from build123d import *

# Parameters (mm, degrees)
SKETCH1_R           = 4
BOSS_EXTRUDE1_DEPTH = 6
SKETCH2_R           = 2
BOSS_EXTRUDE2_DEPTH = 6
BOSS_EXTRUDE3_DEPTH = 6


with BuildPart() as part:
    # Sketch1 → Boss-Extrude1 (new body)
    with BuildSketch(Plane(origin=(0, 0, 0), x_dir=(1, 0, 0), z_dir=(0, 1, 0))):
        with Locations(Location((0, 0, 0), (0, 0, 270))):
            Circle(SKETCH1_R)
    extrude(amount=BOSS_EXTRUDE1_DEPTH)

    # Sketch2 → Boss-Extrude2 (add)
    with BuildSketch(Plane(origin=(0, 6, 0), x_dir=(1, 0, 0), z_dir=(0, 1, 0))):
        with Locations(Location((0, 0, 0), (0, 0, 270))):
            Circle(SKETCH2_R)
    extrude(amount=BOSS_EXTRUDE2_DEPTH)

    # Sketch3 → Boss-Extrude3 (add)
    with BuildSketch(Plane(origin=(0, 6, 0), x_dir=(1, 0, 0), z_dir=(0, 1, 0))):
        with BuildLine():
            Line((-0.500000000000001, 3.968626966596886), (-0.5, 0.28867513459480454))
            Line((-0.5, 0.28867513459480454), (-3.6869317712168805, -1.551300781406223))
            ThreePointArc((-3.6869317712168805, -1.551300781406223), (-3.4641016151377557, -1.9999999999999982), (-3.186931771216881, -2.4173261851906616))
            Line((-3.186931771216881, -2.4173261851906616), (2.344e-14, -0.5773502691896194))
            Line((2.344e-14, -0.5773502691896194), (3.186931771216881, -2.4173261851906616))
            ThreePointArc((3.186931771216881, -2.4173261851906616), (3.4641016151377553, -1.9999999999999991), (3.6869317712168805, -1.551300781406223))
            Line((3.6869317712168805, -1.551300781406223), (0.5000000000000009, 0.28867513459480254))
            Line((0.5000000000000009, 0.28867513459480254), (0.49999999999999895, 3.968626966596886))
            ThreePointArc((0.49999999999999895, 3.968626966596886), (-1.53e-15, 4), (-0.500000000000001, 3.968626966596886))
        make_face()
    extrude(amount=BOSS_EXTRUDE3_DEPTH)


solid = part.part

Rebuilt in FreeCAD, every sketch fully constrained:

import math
import FreeCAD as App
import Part
import Sketcher
from FreeCAD import Vector
Q = App.Units.Quantity

doc = App.newDocument("Part")
body = doc.addObject("PartDesign::Body", "Body")

# Sketch on XZ plane
sketch1 = doc.addObject("Sketcher::SketchObject", "Sketch")
body.addObject(sketch1)
sketch1.AttachmentSupport = (doc.XZ_Plane, [""])
sketch1.MapMode = "FlatFace"
sketch1.addGeometry(Part.Circle(Vector(0, 0, 0), Vector(0, 0, 1), 4), False)
sketch1.addConstraint([
    Sketcher.Constraint("Coincident", 0, 3, -1, 1),
    Sketcher.Constraint("Diameter", 0, 8.0),
])
pad1 = doc.addObject("PartDesign::Pad", "Pad")
body.addObject(pad1)
pad1.Profile = sketch1
pad1.Length = 6
pad1.Reversed = True

# Sketch on XZ plane
sketch2 = doc.addObject("Sketcher::SketchObject", "Sketch001")
body.addObject(sketch2)
sketch2.AttachmentSupport = (doc.XZ_Plane, [""])
sketch2.MapMode = "FlatFace"
sketch2.AttachmentOffset = App.Placement(Vector(0, 0, -6), App.Rotation())
sketch2.addGeometry(Part.Circle(Vector(0, 0, 0), Vector(0, 0, 1), 2), False)
sketch2.addConstraint([
    Sketcher.Constraint("Coincident", 0, 3, -1, 1),
    Sketcher.Constraint("Diameter", 0, 4.0),
])
pad2 = doc.addObject("PartDesign::Pad", "Pad001")
body.addObject(pad2)
pad2.Profile = sketch2
pad2.Length = 6
pad2.Reversed = True

# Sketch on XZ plane
sketch3 = doc.addObject("Sketcher::SketchObject", "Sketch002")
body.addObject(sketch3)
sketch3.AttachmentSupport = (doc.XZ_Plane, [""])
sketch3.MapMode = "FlatFace"
sketch3.AttachmentOffset = App.Placement(Vector(0, 0, -6), App.Rotation())
sketch3.addGeometry([
    Part.LineSegment(Vector(-0.5, -4, 0), Vector(-0.5, -0.3, 0)),  # 0
    Part.LineSegment(Vector(-0.5, -0.3, 0), Vector(-3.7, 1.6, 0)),  # 1
    Part.ArcOfCircle(Part.Circle(Vector(0, 0, 0), Vector(0, 0, 1), 4), math.radians(142.82), math.radians(157.18)),  # 2
    Part.LineSegment(Vector(-3.2, 2.4, 0), Vector(0, 0.6, 0)),  # 3
    Part.LineSegment(Vector(0, 0.6, 0), Vector(3.2, 2.4, 0)),  # 4
    Part.ArcOfCircle(Part.Circle(Vector(0, 0, 0), Vector(0, 0, 1), 4), math.radians(22.82), math.radians(37.18)),  # 5
    Part.LineSegment(Vector(3.7, 1.6, 0), Vector(0.5, -0.3, 0)),  # 6
    Part.LineSegment(Vector(0.5, -0.3, 0), Vector(0.5, -4, 0)),  # 7
    Part.ArcOfCircle(Part.Circle(Vector(0, 0, 0), Vector(0, 0, 1), 4), math.radians(-97.18), math.radians(-82.82)),  # 8
], False)
sketch3.addConstraint([
    Sketcher.Constraint("Coincident", 0, 2, 1, 1),
    Sketcher.Constraint("Coincident", 1, 2, 2, 2),
    Sketcher.Constraint("Coincident", 2, 1, 3, 1),
    Sketcher.Constraint("Coincident", 3, 2, 4, 1),
    Sketcher.Constraint("Coincident", 4, 2, 5, 2),
    Sketcher.Constraint("Coincident", 5, 1, 6, 1),
    Sketcher.Constraint("Coincident", 6, 2, 7, 1),
    Sketcher.Constraint("Coincident", 7, 2, 8, 2),
    Sketcher.Constraint("Coincident", 8, 1, 0, 1),
    Sketcher.Constraint("Vertical", 0),
    Sketcher.Constraint("Vertical", 7),
    Sketcher.Constraint("Coincident", 2, 3, -1, 1),
    Sketcher.Constraint("Coincident", 5, 3, -1, 1),
    Sketcher.Constraint("Coincident", 8, 3, -1, 1),
    Sketcher.Constraint("Equal", 2, 5),
    Sketcher.Constraint("Equal", 5, 8),
    Sketcher.Constraint("Symmetric", 0, 2, 6, 2, -2),
    Sketcher.Constraint("PointOnObject", 3, 2, -2),
    Sketcher.Constraint("Parallel", 1, 3),
    Sketcher.Constraint("Parallel", 4, 6),
    Sketcher.Constraint("Horizontal", 2, 1, 4, 2),
    Sketcher.Constraint("Equal", 1, 3),
    Sketcher.Constraint("Radius", 2, 4.0),
    Sketcher.Constraint("Angle", 1, Q("150 deg")),
    Sketcher.Constraint("DistanceX", 0, 2, 6, 2, 1.0),
    Sketcher.Constraint("DistanceY", 0, 2, 2, 1, 2.706001),
])
pad3 = doc.addObject("PartDesign::Pad", "Pad002")
body.addObject(pad3)
pad3.Profile = sketch3
pad3.Length = 6
pad3.Reversed = True

doc.recompute()
